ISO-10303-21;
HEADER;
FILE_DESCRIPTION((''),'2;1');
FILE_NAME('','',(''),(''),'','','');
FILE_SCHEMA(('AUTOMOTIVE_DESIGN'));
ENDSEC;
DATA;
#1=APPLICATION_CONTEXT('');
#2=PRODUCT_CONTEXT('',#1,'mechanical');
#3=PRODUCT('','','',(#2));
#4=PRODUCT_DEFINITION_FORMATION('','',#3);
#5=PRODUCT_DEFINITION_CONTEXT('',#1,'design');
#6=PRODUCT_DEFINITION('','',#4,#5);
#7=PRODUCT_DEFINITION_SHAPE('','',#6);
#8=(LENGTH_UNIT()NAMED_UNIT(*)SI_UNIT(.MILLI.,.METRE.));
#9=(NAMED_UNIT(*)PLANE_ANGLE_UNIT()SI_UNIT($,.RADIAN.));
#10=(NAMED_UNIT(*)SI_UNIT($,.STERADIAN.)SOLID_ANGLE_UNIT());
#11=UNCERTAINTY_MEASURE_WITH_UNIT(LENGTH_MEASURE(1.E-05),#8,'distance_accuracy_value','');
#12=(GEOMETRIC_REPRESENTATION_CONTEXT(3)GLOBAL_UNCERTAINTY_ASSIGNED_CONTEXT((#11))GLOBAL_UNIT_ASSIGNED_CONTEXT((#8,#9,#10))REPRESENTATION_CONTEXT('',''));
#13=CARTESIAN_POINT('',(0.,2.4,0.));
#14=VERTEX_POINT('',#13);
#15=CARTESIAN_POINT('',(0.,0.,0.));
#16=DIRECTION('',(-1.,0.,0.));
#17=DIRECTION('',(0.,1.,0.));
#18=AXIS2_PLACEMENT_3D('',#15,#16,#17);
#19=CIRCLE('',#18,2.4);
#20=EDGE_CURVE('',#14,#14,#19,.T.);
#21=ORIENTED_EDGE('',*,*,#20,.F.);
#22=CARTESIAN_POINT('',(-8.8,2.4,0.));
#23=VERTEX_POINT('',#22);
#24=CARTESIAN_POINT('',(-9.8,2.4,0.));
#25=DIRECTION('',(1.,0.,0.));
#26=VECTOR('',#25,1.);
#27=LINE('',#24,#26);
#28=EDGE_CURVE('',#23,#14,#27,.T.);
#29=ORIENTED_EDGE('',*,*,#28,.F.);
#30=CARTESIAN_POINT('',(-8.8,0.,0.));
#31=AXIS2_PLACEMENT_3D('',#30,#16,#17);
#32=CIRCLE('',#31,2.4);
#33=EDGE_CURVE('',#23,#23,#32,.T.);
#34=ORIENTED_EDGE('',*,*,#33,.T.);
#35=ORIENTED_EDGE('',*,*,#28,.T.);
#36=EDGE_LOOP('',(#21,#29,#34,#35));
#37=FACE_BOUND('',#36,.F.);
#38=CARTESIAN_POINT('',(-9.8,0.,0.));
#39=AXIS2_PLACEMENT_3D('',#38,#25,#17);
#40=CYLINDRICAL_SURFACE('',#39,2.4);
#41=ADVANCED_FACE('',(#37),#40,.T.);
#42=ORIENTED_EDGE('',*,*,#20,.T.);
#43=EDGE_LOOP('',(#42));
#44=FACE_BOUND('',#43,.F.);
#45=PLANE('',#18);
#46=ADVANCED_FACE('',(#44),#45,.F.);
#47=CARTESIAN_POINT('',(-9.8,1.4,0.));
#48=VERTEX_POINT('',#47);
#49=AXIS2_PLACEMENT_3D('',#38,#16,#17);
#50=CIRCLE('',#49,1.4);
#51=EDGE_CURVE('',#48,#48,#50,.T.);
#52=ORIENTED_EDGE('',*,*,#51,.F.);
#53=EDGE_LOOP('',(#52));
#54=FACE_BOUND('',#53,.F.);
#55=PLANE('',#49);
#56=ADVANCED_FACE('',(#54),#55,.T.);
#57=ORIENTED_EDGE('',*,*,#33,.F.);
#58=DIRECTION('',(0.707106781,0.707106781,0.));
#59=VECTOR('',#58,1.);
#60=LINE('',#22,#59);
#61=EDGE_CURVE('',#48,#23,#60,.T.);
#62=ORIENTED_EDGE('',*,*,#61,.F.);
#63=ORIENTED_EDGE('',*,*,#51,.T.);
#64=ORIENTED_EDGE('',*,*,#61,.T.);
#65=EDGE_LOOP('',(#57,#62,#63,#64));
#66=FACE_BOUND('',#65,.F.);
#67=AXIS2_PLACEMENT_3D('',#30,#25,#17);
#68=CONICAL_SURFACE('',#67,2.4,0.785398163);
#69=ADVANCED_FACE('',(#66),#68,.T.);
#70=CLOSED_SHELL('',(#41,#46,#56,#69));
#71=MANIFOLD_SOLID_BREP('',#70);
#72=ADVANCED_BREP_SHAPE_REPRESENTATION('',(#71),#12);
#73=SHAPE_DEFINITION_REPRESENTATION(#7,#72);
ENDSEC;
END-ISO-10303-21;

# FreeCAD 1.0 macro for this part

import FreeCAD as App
import Part
import Sketcher

V = App.Vector
Q = App.Units.Quantity


def edges_at(feature, points):
    """Names of the edges that pass closest to the given points."""
    edges = feature.Shape.Edges
    near = lambda p: min(range(len(edges)), key=lambda i: edges[i].distToShape(Part.Vertex(*p))[0])
    return sorted({f"Edge{near(p) + 1}" for p in points})


def add_polygon(sketch, points):
    """Adds a closed chain of lines whose ends are joined by coincident constraints."""
    first, n = sketch.GeometryCount, len(points)
    for a, b in zip(points, points[1:] + points[:1]):
        sketch.addGeometry(Part.LineSegment(App.Vector(*a, 0), App.Vector(*b, 0)), False)
    for i in range(n):
        sketch.addConstraint(Sketcher.Constraint("Coincident", first + i, 2, first + (i + 1) % n, 1))

doc = App.newDocument("Part")
body = doc.addObject("PartDesign::Body", "Body")

sketch1 = body.newObject("Sketcher::SketchObject", "Sketch")
sketch1.AttachmentSupport = (doc.getObject("XY_Plane"), [""])
sketch1.MapMode = "FlatFace"
add_polygon(sketch1, [(-9.8, 0), (0, 0), (0, 2.4), (-9.8, 2.4)])
sketch1.addConstraint([
    Sketcher.Constraint("Horizontal", 0),
    Sketcher.Constraint("Vertical", 1),
    Sketcher.Constraint("Horizontal", 2),
    Sketcher.Constraint("Vertical", 3),
    Sketcher.Constraint("Coincident", 0, 2, -1, 1),
    Sketcher.Constraint("DistanceX", 0, 1, 0, 2, Q("9.8 mm")),
    Sketcher.Constraint("DistanceY", 1, 1, 1, 2, Q("2.4 mm")),
])
revolution = body.newObject("PartDesign::Revolution", "Revolution")
revolution.Profile = sketch1
revolution.ReferenceAxis = (sketch1, ["H_Axis"])
revolution.Angle = 360
doc.recompute()

chamfer = body.newObject("PartDesign::Chamfer", "Chamfer")
chamfer.Base = (revolution, edges_at(revolution, [(-9.8, -2.4, 0)]))
chamfer.Size = 1

doc.recompute()
